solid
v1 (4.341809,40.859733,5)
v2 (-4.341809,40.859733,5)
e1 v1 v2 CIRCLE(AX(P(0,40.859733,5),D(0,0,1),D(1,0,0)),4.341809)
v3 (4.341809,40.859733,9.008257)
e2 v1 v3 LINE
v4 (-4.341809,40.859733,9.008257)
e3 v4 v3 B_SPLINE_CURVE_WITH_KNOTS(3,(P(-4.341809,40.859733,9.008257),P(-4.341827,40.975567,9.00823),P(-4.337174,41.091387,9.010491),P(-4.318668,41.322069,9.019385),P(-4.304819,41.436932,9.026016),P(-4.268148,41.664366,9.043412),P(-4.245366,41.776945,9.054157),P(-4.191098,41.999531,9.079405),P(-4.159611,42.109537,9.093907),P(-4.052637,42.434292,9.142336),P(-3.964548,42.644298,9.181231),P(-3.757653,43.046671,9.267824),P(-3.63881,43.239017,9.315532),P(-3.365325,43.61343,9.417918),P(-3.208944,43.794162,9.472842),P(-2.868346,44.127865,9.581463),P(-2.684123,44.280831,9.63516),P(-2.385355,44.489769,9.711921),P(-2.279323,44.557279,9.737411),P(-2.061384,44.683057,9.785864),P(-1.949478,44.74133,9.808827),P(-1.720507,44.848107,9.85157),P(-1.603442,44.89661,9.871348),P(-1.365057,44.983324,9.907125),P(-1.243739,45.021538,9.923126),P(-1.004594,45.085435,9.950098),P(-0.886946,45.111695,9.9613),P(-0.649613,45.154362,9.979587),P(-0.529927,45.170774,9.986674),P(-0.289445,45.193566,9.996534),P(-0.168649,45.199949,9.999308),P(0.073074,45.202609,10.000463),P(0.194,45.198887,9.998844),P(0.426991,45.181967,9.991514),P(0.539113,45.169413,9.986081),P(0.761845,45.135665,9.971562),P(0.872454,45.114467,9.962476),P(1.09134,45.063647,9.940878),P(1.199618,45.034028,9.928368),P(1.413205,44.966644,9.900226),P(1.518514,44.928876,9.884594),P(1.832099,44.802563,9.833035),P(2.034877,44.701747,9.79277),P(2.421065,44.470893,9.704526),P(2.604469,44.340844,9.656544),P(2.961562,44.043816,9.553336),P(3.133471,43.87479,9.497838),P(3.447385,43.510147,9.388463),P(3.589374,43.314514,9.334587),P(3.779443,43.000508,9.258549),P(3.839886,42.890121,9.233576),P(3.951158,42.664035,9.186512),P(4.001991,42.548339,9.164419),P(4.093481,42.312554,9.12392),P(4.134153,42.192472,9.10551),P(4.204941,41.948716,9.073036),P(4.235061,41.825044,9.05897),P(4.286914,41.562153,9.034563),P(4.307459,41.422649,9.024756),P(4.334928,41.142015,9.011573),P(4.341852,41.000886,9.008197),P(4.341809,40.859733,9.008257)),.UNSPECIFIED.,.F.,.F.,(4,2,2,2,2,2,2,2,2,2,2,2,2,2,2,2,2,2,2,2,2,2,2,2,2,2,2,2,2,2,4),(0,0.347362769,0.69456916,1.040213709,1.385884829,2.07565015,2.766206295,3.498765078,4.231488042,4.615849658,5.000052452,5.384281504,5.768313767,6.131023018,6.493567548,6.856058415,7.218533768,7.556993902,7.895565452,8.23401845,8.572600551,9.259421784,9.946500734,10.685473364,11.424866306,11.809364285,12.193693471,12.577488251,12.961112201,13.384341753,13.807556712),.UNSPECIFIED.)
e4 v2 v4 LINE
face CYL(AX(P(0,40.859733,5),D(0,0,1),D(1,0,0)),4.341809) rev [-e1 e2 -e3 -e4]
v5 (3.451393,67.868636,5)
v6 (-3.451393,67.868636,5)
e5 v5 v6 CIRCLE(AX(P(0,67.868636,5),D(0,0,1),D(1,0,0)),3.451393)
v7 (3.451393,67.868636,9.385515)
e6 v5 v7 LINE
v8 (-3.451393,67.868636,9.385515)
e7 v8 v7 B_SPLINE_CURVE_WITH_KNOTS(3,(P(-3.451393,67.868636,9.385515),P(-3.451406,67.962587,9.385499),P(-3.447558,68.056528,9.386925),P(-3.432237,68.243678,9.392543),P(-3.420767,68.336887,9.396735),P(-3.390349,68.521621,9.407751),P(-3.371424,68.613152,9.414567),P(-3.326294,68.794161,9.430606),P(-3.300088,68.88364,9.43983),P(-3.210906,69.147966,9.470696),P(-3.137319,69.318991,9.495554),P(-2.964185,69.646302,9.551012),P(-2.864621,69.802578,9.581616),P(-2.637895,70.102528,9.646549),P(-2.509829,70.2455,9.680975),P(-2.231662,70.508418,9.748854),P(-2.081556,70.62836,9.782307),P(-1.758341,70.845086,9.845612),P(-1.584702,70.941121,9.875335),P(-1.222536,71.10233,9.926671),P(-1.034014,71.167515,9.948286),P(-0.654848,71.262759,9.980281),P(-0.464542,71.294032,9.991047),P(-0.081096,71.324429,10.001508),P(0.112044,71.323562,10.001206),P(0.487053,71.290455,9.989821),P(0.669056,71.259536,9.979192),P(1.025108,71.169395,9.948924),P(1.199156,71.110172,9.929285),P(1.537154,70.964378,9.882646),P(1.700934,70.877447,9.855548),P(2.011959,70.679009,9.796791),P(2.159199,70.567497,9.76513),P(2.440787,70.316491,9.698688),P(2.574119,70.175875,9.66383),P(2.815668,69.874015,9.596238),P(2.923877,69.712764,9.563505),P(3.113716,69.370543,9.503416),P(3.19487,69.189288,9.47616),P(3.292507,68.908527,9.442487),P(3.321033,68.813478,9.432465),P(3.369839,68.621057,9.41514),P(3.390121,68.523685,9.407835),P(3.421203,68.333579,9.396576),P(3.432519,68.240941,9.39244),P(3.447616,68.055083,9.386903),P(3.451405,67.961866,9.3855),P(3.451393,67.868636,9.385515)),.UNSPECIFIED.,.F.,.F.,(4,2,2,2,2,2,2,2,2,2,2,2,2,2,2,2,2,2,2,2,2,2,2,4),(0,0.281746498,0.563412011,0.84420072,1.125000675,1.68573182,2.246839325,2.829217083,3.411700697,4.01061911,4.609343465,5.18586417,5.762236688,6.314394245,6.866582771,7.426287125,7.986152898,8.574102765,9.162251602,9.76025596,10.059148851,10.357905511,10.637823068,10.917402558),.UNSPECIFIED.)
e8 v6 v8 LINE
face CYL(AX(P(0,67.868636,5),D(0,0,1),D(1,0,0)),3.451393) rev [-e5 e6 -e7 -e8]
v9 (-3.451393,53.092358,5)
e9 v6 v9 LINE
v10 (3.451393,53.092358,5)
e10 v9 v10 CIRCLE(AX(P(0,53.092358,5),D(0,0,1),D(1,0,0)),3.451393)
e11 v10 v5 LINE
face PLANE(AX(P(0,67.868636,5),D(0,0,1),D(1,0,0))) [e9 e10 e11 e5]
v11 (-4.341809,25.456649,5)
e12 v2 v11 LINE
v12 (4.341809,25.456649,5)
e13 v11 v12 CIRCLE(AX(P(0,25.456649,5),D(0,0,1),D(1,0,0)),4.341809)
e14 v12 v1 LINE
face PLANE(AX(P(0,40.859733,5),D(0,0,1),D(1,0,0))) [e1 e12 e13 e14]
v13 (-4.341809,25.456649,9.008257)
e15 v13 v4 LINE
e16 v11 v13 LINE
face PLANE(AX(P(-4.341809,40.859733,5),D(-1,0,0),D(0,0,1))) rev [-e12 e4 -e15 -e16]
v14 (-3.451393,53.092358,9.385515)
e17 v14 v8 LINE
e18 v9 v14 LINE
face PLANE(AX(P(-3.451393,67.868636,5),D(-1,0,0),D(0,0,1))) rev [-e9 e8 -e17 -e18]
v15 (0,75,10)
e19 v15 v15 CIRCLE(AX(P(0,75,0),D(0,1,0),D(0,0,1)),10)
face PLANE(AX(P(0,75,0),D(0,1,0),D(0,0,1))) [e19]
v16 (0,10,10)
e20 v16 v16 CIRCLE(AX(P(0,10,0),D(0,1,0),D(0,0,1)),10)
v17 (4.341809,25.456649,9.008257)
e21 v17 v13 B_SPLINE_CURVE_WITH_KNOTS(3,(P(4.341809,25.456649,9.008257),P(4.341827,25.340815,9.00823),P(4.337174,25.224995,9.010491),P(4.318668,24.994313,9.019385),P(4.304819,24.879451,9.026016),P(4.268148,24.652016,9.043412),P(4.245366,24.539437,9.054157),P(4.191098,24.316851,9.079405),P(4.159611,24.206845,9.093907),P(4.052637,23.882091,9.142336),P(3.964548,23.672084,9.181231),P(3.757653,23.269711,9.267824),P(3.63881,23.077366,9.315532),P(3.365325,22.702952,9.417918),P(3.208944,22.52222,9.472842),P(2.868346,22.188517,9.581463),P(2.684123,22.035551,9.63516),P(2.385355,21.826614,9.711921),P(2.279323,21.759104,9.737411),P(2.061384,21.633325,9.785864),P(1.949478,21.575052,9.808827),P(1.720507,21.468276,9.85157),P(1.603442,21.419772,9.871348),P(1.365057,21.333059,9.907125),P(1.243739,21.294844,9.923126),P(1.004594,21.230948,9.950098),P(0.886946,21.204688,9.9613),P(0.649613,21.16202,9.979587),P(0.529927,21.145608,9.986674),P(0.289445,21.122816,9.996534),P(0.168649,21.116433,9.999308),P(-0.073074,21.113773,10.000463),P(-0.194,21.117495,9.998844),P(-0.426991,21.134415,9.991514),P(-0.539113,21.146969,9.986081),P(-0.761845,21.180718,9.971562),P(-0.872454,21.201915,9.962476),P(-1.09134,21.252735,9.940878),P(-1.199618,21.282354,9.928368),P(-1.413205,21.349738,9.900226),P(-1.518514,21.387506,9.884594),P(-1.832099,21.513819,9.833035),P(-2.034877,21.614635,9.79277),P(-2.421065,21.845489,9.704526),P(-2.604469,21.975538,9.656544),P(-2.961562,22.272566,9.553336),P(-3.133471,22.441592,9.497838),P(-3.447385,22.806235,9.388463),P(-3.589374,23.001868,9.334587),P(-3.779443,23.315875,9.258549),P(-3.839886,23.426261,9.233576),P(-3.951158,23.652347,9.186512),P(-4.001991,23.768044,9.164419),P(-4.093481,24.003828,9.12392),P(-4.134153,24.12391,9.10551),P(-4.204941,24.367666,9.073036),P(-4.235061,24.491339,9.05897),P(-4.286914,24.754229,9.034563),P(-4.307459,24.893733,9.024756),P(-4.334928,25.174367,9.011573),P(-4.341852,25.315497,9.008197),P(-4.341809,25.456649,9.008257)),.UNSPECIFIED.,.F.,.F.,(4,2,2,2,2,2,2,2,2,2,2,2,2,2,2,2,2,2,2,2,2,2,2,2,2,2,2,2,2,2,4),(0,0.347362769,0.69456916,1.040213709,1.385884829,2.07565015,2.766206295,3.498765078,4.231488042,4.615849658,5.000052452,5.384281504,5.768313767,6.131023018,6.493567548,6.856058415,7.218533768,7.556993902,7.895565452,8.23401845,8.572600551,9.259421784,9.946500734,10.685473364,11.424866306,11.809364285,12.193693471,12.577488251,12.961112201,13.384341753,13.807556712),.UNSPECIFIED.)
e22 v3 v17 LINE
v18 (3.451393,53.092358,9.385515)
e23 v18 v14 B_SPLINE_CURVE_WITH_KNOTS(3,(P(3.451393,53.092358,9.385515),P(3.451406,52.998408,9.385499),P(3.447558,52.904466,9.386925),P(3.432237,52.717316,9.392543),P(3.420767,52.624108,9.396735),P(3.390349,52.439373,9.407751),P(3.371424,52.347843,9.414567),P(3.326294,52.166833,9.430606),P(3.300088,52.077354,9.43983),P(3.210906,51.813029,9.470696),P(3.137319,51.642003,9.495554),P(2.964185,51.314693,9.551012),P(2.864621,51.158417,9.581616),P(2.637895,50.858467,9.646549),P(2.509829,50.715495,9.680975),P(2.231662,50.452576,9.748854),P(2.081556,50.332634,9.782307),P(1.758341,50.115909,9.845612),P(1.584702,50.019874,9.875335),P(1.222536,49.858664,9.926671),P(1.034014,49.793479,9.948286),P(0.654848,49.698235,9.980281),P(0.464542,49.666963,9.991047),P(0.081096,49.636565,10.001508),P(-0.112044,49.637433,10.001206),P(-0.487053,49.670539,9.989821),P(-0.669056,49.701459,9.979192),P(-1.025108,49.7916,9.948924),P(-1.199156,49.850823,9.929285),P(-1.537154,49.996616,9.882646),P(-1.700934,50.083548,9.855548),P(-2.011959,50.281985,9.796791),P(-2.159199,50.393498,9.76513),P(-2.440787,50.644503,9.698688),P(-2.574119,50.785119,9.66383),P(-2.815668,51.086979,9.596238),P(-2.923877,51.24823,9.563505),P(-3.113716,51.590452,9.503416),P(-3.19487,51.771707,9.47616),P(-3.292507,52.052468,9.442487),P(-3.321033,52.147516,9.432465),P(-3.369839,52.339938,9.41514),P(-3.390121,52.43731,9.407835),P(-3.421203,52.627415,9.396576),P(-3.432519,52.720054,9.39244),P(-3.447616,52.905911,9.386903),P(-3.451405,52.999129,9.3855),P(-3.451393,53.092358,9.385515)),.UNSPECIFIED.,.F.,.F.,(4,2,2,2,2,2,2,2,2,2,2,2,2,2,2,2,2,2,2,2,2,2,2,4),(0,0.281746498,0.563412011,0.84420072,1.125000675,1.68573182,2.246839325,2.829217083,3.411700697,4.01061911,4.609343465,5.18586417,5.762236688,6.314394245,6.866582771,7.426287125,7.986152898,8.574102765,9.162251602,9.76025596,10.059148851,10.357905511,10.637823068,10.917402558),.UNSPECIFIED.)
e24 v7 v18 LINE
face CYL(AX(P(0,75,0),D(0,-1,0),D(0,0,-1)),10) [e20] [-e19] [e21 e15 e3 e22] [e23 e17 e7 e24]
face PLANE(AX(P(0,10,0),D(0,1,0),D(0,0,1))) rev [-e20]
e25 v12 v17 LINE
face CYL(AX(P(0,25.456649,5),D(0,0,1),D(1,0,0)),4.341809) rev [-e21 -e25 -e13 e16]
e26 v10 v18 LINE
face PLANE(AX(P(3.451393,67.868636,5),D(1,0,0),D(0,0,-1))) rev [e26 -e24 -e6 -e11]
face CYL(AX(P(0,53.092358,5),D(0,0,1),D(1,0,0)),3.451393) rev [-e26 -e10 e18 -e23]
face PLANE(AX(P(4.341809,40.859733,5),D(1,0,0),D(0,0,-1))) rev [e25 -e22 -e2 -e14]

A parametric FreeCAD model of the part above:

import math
import FreeCAD as App
import Part
import Sketcher

V = App.Vector

doc = App.newDocument("Part")
body = doc.addObject("PartDesign::Body", "Body")

# Sketch on XZ plane
sketch1 = body.newObject("Sketcher::SketchObject", "Sketch")
sketch1.AttachmentSupport = (doc.getObject("XZ_Plane"), [""])
sketch1.MapMode = "FlatFace"
sketch1.AttachmentOffset = App.Placement(V(0, 0, -10), App.Rotation())
sketch1.addGeometry(Part.Circle(V(0, 0, 0), V(0, 0, 1), 10), False)
sketch1.addConstraint(Sketcher.Constraint("Coincident", 0, 3, -1, 1))
sketch1.addConstraint(Sketcher.Constraint("Diameter", 0, 20.0))
pad1 = body.newObject("PartDesign::Pad", "Pad")
pad1.Profile = sketch1
pad1.Length = 65
pad1.Reversed = True

# Sketch on XY plane
sketch2 = body.newObject("Sketcher::SketchObject", "Sketch001")
sketch2.AttachmentSupport = (doc.getObject("XY_Plane"), [""])
sketch2.MapMode = "FlatFace"
sketch2.AttachmentOffset = App.Placement(V(0, 0, 10), App.Rotation())
sketch2.addGeometry(Part.LineSegment(V(4.3, 25.5, 0), V(4.3, 40.9, 0)), False)
sketch2.addGeometry(Part.ArcOfCircle(Part.Circle(V(0, 40.9, 0), V(0, 0, 1), 4.3), math.radians(0), math.radians(180)), False)
sketch2.addGeometry(Part.LineSegment(V(-4.3, 40.9, 0), V(-4.3, 25.5, 0)), False)
sketch2.addGeometry(Part.ArcOfCircle(Part.Circle(V(0, 25.5, 0), V(0, 0, 1), 4.3), math.radians(180), math.radians(360)), False)
sketch2.addConstraint(Sketcher.Constraint("Tangent", 0, 2, 1, 1))
sketch2.addConstraint(Sketcher.Constraint("Tangent", 1, 2, 2, 1))
sketch2.addConstraint(Sketcher.Constraint("Tangent", 2, 2, 3, 1))
sketch2.addConstraint(Sketcher.Constraint("Tangent", 3, 2, 0, 1))
sketch2.addConstraint(Sketcher.Constraint("Vertical", 0))
sketch2.addConstraint(Sketcher.Constraint("Vertical", 2))
sketch2.addConstraint(Sketcher.Constraint("PointOnObject", 1, 3, -2))
sketch2.addConstraint(Sketcher.Constraint("Radius", 1, 4.341809))
sketch2.addConstraint(Sketcher.Constraint("DistanceY", 0, 1, 0, 2, 15.403084))
sketch2.addConstraint(Sketcher.Constraint("DistanceY", -1, 1, 3, 3, 25.456649))
pocket1 = body.newObject("PartDesign::Pocket", "Pocket")
pocket1.Profile = sketch2
pocket1.Length = 5

# Sketch on XY plane
sketch3 = body.newObject("Sketcher::SketchObject", "Sketch002")
sketch3.AttachmentSupport = (doc.getObject("XY_Plane"), [""])
sketch3.MapMode = "FlatFace"
sketch3.AttachmentOffset = App.Placement(V(0, 0, 10), App.Rotation())
sketch3.addGeometry(Part.LineSegment(V(3.5, 53.1, 0), V(3.5, 67.9, 0)), False)
sketch3.addGeometry(Part.ArcOfCircle(Part.Circle(V(0, 67.9, 0), V(0, 0, 1), 3.5), math.radians(0), math.radians(180)), False)
sketch3.addGeometry(Part.LineSegment(V(-3.5, 67.9, 0), V(-3.5, 53.1, 0)), False)
sketch3.addGeometry(Part.ArcOfCircle(Part.Circle(V(0, 53.1, 0), V(0, 0, 1), 3.5), math.radians(180), math.radians(360)), False)
sketch3.addConstraint(Sketcher.Constraint("Tangent", 0, 2, 1, 1))
sketch3.addConstraint(Sketcher.Constraint("Tangent", 1, 2, 2, 1))
sketch3.addConstraint(Sketcher.Constraint("Tangent", 2, 2, 3, 1))
sketch3.addConstraint(Sketcher.Constraint("Tangent", 3, 2, 0, 1))
sketch3.addConstraint(Sketcher.Constraint("Vertical", 0))
sketch3.addConstraint(Sketcher.Constraint("Vertical", 2))
sketch3.addConstraint(Sketcher.Constraint("PointOnObject", 1, 3, -2))
sketch3.addConstraint(Sketcher.Constraint("Radius", 1, 3.451393))
sketch3.addConstraint(Sketcher.Constraint("DistanceY", 0, 1, 0, 2, 14.776278))
sketch3.addConstraint(Sketcher.Constraint("DistanceY", -1, 1, 3, 3, 53.092358))
pocket2 = body.newObject("PartDesign::Pocket", "Pocket001")
pocket2.Profile = sketch3
pocket2.Length = 5

doc.recompute()
